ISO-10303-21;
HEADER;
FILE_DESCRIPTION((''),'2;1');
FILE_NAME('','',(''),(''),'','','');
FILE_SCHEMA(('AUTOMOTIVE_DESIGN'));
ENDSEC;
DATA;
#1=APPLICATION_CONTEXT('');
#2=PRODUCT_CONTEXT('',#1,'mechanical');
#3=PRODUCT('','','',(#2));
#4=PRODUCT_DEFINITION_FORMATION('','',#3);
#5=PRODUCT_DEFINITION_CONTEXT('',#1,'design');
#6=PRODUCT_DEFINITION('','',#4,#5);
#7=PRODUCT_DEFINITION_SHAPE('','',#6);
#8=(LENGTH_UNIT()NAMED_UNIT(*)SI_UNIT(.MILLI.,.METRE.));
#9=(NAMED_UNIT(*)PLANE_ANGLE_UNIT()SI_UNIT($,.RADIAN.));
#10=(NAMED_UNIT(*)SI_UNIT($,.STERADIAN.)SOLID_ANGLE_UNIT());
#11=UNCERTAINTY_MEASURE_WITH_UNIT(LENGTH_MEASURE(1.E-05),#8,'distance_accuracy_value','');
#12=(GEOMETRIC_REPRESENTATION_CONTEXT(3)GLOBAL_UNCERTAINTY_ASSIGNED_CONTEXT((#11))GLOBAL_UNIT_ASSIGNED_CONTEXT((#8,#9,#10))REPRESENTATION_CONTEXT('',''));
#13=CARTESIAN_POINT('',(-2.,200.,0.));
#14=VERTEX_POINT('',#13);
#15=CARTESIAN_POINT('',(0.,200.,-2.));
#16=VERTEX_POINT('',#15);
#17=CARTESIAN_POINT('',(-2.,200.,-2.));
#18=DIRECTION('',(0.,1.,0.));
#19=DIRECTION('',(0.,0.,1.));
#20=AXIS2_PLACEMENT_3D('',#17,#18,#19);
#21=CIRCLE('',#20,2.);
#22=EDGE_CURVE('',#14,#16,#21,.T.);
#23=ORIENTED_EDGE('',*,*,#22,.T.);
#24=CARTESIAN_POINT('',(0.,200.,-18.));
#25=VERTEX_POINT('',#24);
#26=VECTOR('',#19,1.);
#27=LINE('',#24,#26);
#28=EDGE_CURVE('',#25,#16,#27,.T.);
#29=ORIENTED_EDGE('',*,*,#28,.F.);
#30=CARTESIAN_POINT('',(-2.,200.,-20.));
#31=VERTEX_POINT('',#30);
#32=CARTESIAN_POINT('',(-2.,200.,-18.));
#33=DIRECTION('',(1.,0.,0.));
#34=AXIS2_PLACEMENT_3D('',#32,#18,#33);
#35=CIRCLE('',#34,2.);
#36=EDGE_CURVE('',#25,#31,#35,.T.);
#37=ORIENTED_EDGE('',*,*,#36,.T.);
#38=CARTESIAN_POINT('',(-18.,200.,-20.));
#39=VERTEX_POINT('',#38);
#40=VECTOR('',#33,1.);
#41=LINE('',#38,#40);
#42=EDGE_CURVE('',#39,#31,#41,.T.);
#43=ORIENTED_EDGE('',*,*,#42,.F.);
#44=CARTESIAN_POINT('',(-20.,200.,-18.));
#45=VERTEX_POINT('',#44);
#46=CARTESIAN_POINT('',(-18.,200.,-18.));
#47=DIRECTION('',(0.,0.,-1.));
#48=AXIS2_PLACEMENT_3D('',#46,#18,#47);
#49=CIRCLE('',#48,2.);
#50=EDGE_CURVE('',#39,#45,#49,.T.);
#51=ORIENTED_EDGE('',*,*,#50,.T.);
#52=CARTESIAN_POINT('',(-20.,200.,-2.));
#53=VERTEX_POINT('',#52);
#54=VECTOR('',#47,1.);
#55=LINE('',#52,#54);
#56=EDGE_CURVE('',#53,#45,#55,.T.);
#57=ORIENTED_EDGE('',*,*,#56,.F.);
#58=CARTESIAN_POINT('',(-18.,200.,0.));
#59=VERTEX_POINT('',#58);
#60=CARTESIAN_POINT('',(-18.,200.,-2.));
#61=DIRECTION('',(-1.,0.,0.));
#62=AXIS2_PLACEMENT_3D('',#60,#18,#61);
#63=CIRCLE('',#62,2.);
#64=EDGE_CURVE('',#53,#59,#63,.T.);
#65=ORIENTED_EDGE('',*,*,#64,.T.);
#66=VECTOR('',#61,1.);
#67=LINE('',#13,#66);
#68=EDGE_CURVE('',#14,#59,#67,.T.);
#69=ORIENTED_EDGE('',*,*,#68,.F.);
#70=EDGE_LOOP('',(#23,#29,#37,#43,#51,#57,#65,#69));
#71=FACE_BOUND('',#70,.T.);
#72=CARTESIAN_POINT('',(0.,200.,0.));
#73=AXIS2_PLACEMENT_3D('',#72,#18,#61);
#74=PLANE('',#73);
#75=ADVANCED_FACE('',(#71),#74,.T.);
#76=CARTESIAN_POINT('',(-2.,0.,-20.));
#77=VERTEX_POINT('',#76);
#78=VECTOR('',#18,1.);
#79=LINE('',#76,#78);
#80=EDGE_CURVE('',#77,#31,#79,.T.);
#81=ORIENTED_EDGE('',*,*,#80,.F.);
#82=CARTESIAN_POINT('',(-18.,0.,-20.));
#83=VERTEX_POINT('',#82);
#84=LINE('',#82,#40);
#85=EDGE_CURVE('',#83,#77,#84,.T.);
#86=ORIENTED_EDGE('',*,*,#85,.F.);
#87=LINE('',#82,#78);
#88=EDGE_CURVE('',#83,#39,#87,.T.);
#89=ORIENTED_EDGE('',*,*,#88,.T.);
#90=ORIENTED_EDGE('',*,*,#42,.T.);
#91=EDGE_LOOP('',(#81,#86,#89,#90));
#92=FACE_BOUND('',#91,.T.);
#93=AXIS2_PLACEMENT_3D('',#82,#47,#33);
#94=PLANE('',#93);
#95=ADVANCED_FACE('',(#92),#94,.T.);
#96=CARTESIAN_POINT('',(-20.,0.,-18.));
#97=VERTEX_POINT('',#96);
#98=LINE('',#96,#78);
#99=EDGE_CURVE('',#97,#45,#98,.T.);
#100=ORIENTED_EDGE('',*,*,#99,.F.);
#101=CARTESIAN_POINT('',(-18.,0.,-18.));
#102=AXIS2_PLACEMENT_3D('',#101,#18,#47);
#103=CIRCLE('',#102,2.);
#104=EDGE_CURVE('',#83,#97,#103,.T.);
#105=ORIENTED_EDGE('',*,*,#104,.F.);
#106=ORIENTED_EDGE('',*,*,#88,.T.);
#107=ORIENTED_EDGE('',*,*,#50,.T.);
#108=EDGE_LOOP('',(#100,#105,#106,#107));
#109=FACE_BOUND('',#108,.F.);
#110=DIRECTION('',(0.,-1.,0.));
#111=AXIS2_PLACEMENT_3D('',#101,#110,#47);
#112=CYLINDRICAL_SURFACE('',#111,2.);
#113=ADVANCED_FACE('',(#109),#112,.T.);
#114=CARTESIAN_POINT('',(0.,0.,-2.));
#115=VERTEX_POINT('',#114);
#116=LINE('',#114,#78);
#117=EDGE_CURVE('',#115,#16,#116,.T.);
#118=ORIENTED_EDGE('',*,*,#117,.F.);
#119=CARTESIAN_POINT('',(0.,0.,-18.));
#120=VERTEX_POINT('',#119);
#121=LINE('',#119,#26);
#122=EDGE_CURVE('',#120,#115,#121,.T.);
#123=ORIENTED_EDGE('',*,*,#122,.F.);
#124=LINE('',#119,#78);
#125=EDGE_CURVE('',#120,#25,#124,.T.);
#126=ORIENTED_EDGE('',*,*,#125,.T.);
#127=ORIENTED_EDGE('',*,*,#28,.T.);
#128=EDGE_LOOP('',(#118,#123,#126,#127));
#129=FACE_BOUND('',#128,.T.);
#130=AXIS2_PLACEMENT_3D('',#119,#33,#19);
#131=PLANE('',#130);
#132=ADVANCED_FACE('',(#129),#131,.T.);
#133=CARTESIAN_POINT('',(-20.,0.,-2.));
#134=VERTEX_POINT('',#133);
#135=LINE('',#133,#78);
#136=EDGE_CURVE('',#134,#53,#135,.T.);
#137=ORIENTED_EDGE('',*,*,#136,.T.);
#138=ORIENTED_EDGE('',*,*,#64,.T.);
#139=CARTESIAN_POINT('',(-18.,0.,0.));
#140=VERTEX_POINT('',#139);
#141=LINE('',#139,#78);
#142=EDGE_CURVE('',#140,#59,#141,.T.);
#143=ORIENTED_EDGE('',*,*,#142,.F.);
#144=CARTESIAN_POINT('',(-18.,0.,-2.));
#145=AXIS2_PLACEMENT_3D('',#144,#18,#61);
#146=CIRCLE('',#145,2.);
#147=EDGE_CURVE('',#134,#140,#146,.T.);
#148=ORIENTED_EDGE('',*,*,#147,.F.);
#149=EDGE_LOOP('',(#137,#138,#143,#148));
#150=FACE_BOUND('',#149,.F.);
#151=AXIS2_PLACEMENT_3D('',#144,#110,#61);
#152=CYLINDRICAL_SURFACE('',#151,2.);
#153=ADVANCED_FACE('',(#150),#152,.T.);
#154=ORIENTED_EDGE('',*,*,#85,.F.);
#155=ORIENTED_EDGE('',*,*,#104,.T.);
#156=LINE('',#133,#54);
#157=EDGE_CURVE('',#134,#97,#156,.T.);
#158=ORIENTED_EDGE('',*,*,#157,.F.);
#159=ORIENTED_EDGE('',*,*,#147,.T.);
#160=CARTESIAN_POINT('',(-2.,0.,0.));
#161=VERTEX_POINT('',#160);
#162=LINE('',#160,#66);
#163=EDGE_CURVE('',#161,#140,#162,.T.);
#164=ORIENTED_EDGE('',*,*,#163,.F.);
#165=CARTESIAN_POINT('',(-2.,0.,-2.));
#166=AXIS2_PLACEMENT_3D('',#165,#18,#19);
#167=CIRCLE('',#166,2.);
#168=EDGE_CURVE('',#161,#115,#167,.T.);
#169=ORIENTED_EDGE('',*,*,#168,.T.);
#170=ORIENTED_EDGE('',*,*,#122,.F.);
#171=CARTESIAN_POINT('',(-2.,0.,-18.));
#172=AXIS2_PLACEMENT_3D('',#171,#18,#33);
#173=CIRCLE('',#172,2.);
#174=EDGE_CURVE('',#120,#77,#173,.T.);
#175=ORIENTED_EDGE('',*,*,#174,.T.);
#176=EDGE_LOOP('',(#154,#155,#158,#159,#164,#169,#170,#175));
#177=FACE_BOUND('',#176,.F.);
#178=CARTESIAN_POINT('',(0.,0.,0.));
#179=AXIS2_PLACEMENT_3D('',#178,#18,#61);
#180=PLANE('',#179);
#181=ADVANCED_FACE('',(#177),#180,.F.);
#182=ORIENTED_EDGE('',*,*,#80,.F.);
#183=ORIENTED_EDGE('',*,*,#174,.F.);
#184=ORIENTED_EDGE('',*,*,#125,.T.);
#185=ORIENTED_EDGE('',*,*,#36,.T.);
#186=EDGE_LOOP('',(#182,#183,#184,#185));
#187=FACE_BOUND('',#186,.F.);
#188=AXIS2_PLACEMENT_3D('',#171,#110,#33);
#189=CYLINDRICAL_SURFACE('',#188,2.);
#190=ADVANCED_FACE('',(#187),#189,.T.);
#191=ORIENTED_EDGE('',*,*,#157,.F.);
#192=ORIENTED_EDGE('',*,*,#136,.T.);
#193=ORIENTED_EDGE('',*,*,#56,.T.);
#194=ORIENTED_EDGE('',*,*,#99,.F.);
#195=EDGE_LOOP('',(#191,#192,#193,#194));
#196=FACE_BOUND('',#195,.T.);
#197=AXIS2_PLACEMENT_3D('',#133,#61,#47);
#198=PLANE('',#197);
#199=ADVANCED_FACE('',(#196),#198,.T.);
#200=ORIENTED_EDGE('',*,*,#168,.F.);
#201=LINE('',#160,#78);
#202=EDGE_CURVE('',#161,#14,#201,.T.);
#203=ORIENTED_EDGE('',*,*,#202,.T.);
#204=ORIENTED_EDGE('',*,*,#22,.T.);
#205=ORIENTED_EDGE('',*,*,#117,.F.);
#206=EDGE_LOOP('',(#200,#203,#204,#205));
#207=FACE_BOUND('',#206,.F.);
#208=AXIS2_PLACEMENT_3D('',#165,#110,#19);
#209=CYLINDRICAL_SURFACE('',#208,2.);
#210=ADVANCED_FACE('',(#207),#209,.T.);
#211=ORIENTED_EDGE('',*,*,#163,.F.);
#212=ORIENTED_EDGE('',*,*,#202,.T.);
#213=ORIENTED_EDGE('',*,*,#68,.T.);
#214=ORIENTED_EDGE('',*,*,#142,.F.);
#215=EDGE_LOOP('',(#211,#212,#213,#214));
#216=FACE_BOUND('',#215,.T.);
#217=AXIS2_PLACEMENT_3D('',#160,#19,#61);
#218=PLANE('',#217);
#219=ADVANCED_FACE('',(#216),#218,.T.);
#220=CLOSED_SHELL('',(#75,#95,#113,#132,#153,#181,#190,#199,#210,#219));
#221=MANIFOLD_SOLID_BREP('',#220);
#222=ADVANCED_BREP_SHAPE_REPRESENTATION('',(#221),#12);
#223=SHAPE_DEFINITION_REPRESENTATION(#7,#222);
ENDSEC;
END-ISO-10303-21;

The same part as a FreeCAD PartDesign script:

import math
import FreeCAD as App
import Part
import Sketcher

doc = App.newDocument("Part")
body = doc.addObject("PartDesign::Body", "Body")

# Sketch on XZ plane
sketch1 = doc.addObject("Sketcher::SketchObject", "Sketch")
body.addObject(sketch1)
sketch1.AttachmentSupport = (doc.XZ_Plane, [""])
sketch1.MapMode = "FlatFace"
sketch1.addGeometry(Part.LineSegment(App.Vector(-18, 0, 0), App.Vector(-2, 0, 0)), False)
sketch1.addGeometry(Part.ArcOfCircle(Part.Circle(App.Vector(-2, -2, 0), App.Vector(0, 0, 1), 2), math.radians(0), math.radians(90)), False)
sketch1.addGeometry(Part.LineSegment(App.Vector(0, -2, 0), App.Vector(0, -18, 0)), False)
sketch1.addGeometry(Part.ArcOfCircle(Part.Circle(App.Vector(-2, -18, 0), App.Vector(0, 0, 1), 2), math.radians(-90), math.radians(0)), False)
sketch1.addGeometry(Part.LineSegment(App.Vector(-2, -20, 0), App.Vector(-18, -20, 0)), False)
sketch1.addGeometry(Part.ArcOfCircle(Part.Circle(App.Vector(-18, -18, 0), App.Vector(0, 0, 1), 2), math.radians(180), math.radians(270)), False)
sketch1.addGeometry(Part.LineSegment(App.Vector(-20, -18, 0), App.Vector(-20, -2, 0)), False)
sketch1.addGeometry(Part.ArcOfCircle(Part.Circle(App.Vector(-18, -2, 0), App.Vector(0, 0, 1), 2), math.radians(90), math.radians(180)), False)
sketch1.addConstraint(Sketcher.Constraint("Tangent", 0, 2, 1, 2))
sketch1.addConstraint(Sketcher.Constraint("Tangent", 1, 1, 2, 1))
sketch1.addConstraint(Sketcher.Constraint("Tangent", 2, 2, 3, 2))
sketch1.addConstraint(Sketcher.Constraint("Tangent", 3, 1, 4, 1))
sketch1.addConstraint(Sketcher.Constraint("Tangent", 4, 2, 5, 2))
sketch1.addConstraint(Sketcher.Constraint("Tangent", 5, 1, 6, 1))
sketch1.addConstraint(Sketcher.Constraint("Tangent", 6, 2, 7, 2))
sketch1.addConstraint(Sketcher.Constraint("Tangent", 7, 1, 0, 1))
sketch1.addConstraint(Sketcher.Constraint("Horizontal", 0))
sketch1.addConstraint(Sketcher.Constraint("Vertical", 2))
sketch1.addConstraint(Sketcher.Constraint("Horizontal", 4))
sketch1.addConstraint(Sketcher.Constraint("Vertical", 6))
sketch1.addConstraint(Sketcher.Constraint("Equal", 1, 3))
sketch1.addConstraint(Sketcher.Constraint("Equal", 3, 5))
sketch1.addConstraint(Sketcher.Constraint("Equal", 5, 7))
sketch1.addConstraint(Sketcher.Constraint("PointOnObject", 0, 2, -1))
sketch1.addConstraint(Sketcher.Constraint("PointOnObject", 1, 1, -2))
sketch1.addConstraint(Sketcher.Constraint("Equal", 4, 2))
sketch1.addConstraint(Sketcher.Constraint("Radius", 1, 2.0))
sketch1.addConstraint(Sketcher.Constraint("DistanceY", 3, 1, -1, 1, 20.0))
pad1 = doc.addObject("PartDesign::Pad", "Pad")
body.addObject(pad1)
pad1.Profile = sketch1
pad1.Length = 200
pad1.Reversed = True

doc.recompute()
